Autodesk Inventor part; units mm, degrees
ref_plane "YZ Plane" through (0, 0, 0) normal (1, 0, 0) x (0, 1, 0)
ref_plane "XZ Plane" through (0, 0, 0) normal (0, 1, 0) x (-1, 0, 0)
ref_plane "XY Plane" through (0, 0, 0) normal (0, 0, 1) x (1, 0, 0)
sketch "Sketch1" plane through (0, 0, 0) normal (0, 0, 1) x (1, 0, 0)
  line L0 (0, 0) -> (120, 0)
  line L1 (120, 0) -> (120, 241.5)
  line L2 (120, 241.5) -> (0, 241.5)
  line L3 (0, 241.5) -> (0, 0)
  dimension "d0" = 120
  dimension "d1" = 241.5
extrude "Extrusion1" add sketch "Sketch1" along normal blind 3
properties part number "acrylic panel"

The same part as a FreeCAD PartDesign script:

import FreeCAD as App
import Part
import Sketcher

V = App.Vector
Q = App.Units.Quantity

doc = App.newDocument("Part")
body = doc.addObject("PartDesign::Body", "Body")

# Sketch on XY plane
sketch1 = body.newObject("Sketcher::SketchObject", "Sketch")
sketch1.AttachmentSupport = (doc.getObject("XY_Plane"), [""])
sketch1.MapMode = "FlatFace"
sketch1.addGeometry([
    Part.LineSegment(V(0, 242, 0), V(0, 0, 0)),
    Part.LineSegment(V(0, 0, 0), V(120, 0, 0)),
    Part.LineSegment(V(120, 0, 0), V(120, 242, 0)),
    Part.LineSegment(V(120, 242, 0), V(0, 242, 0)),
], False)
sketch1.addConstraint([
    Sketcher.Constraint("Coincident", 0, 2, 1, 1),
    Sketcher.Constraint("Coincident", 1, 2, 2, 1),
    Sketcher.Constraint("Coincident", 2, 2, 3, 1),
    Sketcher.Constraint("Coincident", 3, 2, 0, 1),
    Sketcher.Constraint("Vertical", 0),
    Sketcher.Constraint("Horizontal", 1),
    Sketcher.Constraint("Vertical", 2),
    Sketcher.Constraint("Horizontal", 3),
    Sketcher.Constraint("Coincident", 0, 2, -1, 1),
    Sketcher.Constraint("DistanceX", 1, 1, 1, 2, Q("120 mm")),
    Sketcher.Constraint("DistanceY", 0, 2, 0, 1, Q("241.5 mm")),
])
pad1 = body.newObject("PartDesign::Pad", "Pad")
pad1.Profile = sketch1
pad1.Length = 3

doc.recompute()
